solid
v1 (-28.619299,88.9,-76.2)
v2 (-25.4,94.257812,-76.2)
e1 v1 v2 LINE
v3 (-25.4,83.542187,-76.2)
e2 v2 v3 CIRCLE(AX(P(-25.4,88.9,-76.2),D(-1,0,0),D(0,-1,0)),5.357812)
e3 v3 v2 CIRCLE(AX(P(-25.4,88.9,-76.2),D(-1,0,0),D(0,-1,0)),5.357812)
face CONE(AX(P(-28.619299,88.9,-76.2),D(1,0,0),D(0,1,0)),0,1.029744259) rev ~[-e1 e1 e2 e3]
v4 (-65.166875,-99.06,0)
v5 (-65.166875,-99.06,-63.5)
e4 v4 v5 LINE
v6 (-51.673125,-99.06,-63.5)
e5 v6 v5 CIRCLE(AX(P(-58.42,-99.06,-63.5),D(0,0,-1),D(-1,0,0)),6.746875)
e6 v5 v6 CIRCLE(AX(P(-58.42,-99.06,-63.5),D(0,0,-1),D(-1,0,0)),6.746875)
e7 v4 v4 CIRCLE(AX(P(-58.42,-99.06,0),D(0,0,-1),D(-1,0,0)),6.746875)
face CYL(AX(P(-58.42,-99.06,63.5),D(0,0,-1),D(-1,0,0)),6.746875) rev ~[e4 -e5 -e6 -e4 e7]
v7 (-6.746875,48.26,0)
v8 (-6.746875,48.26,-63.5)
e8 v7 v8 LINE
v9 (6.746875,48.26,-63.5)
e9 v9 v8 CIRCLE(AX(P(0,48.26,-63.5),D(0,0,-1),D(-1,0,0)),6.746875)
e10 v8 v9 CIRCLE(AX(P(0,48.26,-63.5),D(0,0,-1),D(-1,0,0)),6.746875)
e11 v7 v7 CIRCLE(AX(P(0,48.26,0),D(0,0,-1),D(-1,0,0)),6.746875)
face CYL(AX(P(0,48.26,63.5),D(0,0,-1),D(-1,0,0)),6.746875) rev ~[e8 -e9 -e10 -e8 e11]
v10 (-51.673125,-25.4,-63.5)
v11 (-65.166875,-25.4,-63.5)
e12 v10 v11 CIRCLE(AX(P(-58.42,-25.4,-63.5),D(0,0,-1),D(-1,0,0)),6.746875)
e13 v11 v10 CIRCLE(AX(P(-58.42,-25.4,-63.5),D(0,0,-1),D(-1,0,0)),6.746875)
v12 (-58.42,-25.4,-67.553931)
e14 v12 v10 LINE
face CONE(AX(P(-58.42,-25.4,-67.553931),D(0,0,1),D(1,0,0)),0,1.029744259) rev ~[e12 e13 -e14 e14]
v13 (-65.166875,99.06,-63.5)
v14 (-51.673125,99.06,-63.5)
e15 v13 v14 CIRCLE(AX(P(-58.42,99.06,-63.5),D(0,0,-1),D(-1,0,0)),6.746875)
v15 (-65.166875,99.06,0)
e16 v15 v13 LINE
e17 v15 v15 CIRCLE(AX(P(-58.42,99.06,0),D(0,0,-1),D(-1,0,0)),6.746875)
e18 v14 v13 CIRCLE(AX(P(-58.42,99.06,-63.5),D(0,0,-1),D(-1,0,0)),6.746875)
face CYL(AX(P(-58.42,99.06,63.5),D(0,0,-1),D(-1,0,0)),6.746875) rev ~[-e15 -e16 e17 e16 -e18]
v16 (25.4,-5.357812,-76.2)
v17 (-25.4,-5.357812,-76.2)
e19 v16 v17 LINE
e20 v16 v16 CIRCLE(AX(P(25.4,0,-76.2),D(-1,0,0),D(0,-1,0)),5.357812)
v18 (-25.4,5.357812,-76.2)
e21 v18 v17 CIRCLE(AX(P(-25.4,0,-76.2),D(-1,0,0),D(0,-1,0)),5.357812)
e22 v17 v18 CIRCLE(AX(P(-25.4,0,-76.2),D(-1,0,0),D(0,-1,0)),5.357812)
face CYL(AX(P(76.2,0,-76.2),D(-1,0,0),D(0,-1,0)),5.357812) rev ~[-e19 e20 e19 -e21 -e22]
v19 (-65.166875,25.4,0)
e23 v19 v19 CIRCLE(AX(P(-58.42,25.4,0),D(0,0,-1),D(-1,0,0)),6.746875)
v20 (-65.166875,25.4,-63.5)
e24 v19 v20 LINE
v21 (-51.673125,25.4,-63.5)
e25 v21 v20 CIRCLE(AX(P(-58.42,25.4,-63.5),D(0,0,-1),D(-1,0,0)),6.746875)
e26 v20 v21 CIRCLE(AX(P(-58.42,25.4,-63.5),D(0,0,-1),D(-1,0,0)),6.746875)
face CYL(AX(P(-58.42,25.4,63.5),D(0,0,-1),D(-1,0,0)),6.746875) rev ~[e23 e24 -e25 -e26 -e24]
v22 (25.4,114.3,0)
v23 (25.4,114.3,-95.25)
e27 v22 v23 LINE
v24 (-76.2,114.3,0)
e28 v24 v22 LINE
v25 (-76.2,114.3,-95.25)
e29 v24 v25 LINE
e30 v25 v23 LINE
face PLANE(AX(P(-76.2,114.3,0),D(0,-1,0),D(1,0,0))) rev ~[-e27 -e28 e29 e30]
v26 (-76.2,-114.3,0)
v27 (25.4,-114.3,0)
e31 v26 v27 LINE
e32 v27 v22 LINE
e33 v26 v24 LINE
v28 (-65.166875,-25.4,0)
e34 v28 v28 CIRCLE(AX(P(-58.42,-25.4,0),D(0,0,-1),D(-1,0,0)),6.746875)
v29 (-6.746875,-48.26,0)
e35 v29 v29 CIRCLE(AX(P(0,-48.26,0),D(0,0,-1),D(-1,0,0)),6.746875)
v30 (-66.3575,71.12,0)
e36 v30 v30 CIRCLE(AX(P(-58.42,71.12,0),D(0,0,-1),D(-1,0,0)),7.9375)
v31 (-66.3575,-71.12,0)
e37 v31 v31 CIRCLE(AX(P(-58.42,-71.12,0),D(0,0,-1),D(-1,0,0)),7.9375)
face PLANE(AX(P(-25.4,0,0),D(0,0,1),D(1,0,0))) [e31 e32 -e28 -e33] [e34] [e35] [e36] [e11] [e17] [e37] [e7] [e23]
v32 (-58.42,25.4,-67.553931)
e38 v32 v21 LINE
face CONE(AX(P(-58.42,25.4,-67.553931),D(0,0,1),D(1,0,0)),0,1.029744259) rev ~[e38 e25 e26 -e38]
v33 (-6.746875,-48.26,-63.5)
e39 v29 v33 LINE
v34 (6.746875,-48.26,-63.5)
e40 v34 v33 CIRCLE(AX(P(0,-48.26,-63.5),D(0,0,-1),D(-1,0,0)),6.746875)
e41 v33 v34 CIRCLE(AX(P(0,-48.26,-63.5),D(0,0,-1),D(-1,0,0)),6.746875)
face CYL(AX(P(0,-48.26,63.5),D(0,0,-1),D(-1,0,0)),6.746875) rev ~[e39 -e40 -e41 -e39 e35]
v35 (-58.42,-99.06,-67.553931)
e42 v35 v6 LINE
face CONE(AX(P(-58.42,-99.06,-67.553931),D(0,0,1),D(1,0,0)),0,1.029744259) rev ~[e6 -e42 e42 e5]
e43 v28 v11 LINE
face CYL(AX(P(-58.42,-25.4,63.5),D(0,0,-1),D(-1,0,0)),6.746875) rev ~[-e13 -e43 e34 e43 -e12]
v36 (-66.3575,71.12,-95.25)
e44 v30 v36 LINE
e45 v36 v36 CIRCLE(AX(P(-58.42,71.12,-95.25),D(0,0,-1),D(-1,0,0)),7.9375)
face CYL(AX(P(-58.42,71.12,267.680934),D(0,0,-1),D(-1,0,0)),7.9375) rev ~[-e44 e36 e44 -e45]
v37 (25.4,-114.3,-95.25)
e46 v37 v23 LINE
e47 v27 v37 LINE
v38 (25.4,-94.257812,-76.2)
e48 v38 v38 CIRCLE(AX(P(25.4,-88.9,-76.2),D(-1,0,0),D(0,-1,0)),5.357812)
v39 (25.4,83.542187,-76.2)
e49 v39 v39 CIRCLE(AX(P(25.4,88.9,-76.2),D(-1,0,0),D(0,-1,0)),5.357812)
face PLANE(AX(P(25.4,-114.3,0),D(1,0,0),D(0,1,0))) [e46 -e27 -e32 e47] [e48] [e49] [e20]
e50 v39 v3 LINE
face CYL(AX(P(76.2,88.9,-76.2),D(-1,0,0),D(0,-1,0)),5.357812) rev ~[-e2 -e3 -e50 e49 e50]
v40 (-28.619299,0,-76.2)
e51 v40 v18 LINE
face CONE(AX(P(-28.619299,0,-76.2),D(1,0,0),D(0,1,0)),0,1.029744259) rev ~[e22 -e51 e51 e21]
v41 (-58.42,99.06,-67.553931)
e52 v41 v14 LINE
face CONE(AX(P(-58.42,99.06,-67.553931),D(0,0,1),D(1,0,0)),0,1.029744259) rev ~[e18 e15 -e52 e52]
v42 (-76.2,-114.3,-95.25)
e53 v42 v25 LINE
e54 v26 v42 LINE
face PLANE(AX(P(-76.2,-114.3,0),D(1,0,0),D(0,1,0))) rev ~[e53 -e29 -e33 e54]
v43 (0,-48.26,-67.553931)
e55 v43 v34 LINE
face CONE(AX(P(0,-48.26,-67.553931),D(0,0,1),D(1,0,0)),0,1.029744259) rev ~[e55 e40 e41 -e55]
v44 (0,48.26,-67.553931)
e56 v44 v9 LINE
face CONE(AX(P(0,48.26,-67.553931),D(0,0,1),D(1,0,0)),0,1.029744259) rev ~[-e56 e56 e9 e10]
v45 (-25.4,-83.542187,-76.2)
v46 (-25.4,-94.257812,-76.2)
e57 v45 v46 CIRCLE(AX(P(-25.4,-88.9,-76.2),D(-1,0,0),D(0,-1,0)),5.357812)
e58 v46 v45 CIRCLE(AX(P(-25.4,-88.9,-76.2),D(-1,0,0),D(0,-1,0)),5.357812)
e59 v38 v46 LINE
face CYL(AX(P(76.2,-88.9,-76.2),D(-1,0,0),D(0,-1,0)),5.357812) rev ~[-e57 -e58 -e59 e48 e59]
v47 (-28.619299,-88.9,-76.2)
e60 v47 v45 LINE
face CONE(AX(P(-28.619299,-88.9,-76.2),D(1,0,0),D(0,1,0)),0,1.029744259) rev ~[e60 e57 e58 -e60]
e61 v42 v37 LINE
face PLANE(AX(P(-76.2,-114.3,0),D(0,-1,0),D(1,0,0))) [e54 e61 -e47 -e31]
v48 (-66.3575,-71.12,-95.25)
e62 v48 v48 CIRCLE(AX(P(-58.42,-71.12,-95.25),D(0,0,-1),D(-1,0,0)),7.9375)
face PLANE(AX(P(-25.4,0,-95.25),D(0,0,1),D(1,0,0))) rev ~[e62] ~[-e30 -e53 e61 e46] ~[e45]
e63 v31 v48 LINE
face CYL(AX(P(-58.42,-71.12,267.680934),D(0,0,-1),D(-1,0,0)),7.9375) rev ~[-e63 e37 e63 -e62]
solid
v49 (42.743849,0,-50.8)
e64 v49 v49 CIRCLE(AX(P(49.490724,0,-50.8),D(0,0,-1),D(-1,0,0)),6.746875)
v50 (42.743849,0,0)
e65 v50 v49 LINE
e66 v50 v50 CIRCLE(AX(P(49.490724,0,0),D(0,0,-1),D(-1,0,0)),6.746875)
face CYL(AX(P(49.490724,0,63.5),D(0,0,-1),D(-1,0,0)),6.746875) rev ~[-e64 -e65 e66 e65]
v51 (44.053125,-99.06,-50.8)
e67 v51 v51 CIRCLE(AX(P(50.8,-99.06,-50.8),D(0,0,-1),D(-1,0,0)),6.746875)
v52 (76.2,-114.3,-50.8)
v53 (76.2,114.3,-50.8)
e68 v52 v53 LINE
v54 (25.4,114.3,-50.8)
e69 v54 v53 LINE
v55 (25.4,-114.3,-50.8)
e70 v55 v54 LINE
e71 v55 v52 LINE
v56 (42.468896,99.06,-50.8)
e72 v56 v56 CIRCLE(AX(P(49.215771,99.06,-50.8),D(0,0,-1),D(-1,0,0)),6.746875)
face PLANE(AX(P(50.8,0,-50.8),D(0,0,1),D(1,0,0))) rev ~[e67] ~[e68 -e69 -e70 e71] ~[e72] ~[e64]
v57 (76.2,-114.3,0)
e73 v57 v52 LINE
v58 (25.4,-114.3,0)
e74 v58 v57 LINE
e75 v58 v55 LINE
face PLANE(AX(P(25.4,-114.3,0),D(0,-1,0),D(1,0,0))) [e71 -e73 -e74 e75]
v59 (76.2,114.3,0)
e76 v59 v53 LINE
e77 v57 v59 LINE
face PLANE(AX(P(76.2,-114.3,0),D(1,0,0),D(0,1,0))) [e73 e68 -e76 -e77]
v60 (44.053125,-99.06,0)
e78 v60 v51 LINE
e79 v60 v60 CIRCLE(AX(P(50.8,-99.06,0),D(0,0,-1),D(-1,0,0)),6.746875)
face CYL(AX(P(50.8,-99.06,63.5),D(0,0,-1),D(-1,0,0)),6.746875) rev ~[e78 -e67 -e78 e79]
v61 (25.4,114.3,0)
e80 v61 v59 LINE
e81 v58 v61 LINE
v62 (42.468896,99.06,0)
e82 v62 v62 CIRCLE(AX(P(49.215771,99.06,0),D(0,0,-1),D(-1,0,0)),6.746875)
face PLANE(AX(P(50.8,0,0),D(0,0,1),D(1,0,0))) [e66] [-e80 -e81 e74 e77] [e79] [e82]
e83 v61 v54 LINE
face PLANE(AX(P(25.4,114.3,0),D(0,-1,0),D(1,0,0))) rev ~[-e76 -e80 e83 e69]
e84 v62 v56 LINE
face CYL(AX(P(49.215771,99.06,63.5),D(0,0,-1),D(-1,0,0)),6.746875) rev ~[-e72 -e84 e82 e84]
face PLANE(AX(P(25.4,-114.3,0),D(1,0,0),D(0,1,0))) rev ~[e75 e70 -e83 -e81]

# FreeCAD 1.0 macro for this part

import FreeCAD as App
import Part
import Sketcher

V = App.Vector
Q = App.Units.Quantity


def add_polygon(sketch, points):
    """Adds a closed chain of lines whose ends are joined by coincident constraints."""
    first, n = sketch.GeometryCount, len(points)
    for a, b in zip(points, points[1:] + points[:1]):
        sketch.addGeometry(Part.LineSegment(App.Vector(*a, 0), App.Vector(*b, 0)), False)
    for i in range(n):
        sketch.addConstraint(Sketcher.Constraint("Coincident", first + i, 2, first + (i + 1) % n, 1))

doc = App.newDocument("Part")
body = doc.addObject("PartDesign::Body", "Body")

sketch1 = body.newObject("Sketcher::SketchObject", "Sketch")
sketch1.AttachmentSupport = (doc.getObject("XY_Plane"), [""])
sketch1.MapMode = "FlatFace"
add_polygon(sketch1, [(-76, 114), (-76, -114), (25, -114), (25, 114)])
sketch1.addConstraint([
    Sketcher.Constraint("Vertical", 0),
    Sketcher.Constraint("Horizontal", 1),
    Sketcher.Constraint("Vertical", 2),
    Sketcher.Constraint("Horizontal", 3),
    Sketcher.Constraint("DistanceX", 1, 1, 1, 2, Q("4 in")),
    Sketcher.Constraint("DistanceY", 0, 2, 0, 1, Q("9 in")),
    Sketcher.Constraint("DistanceX", 0, 2, -1, 1, Q("3 in")),
    Sketcher.Constraint("DistanceY", 0, 2, -1, 1, Q("4.5 in")),
])
pad1 = body.newObject("PartDesign::Pad", "Pad")
pad1.Profile = sketch1
pad1.Length = Q("3.75 in")
pad1.Reversed = True

sketch2 = body.newObject("Sketcher::SketchObject", "Sketch001")
sketch2.AttachmentSupport = (doc.getObject("XY_Plane"), [""])
sketch2.MapMode = "FlatFace"
sketch2.addGeometry([
    Part.Circle(V(-58, 99, 0), V(0, 0, 1), 7),
    Part.Circle(V(-58, 25, 0), V(0, 0, 1), 7),
    Part.Circle(V(-58, -25, 0), V(0, 0, 1), 7),
    Part.Circle(V(-58, -99, 0), V(0, 0, 1), 7),
    Part.Circle(V(51, -99, 0), V(0, 0, 1), 7),
    Part.Circle(V(49, 0, 0), V(0, 0, 1), 7),
    Part.Circle(V(49, 99, 0), V(0, 0, 1), 7),
    Part.Circle(V(0, 48, 0), V(0, 0, 1), 7),
    Part.Circle(V(0, -48, 0), V(0, 0, 1), 7),
], False)
sketch2.addConstraint([
    Sketcher.Constraint("Equal", 0, 1),
    Sketcher.Constraint("Equal", 1, 2),
    Sketcher.Constraint("Equal", 2, 3),
    Sketcher.Constraint("Equal", 3, 4),
    Sketcher.Constraint("Equal", 4, 5),
    Sketcher.Constraint("Equal", 5, 6),
    Sketcher.Constraint("Equal", 6, 7),
    Sketcher.Constraint("Equal", 7, 8),
    Sketcher.Constraint("Symmetric", 7, 3, 8, 3, -1, 1),
    Sketcher.Constraint("Symmetric", 1, 3, 2, 3, -1),
    Sketcher.Constraint("Symmetric", 0, 3, 3, 3, -1),
    Sketcher.Constraint("PointOnObject", 5, 3, -1),
    Sketcher.Constraint("PointOnObject", 7, 3, -2),
    Sketcher.Constraint("Horizontal", 3, 3, 4, 3),
    Sketcher.Constraint("Horizontal", 0, 3, 6, 3),
    Sketcher.Constraint("Vertical", 0, 3, 1, 3),
    Sketcher.Constraint("Diameter", 0, Q("0.53125 in")),
    Sketcher.Constraint("DistanceY", -1, 1, 1, 3, Q("1 in")),
    Sketcher.Constraint("DistanceX", -1, 1, 4, 3, Q("2 in")),
    Sketcher.Constraint("DistanceY", 7, 3, 6, 3, Q("2 in")),
    Sketcher.Constraint("DistanceX", 0, 3, -1, 1, Q("2.3 in")),
    Sketcher.Constraint("DistanceY", -1, 1, 0, 3, Q("3.9 in")),
    Sketcher.Constraint("DistanceX", -1, 1, 6, 3, Q("49.215771 mm")),
    Sketcher.Constraint("DistanceX", -1, 1, 5, 3, Q("49.490724 mm")),
])
doc.recompute()
hole = body.newObject("PartDesign::Hole", "Hole")
hole.Profile = sketch2
hole.ThreadType = "None"
hole.Diameter = Q("0.53125 in")
hole.DepthType = "Dimension"
hole.Depth = Q("2.5 in")
hole.DrillPoint = "Angled"
hole.DrillPointAngle = 118

sketch3 = body.newObject("Sketcher::SketchObject", "Sketch002")
sketch3.AttachmentSupport = (doc.getObject("XY_Plane"), [""])
sketch3.MapMode = "FlatFace"
sketch3.addGeometry([
    Part.Circle(V(-58, 71, 0), V(0, 0, 1), 8),
    Part.Circle(V(-58, -71, 0), V(0, 0, 1), 8),
], False)
sketch3.addConstraint([
    Sketcher.Constraint("Equal", 0, 1),
    Sketcher.Constraint("Symmetric", 0, 3, 1, 3, -1),
    Sketcher.Constraint("Diameter", 0, Q("0.625 in")),
    Sketcher.Constraint("DistanceX", 0, 3, -1, 1, Q("2.3 in")),
    Sketcher.Constraint("DistanceY", -1, 1, 0, 3, Q("2.8 in")),
])
doc.recompute()
hole2 = body.newObject("PartDesign::Hole", "Hole001")
hole2.Profile = sketch3
hole2.ThreadType = "None"
hole2.Diameter = Q("0.625 in")
hole2.DepthType = "ThroughAll"

sketch4 = body.newObject("Sketcher::SketchObject", "Sketch003")
sketch4.AttachmentSupport = (doc.getObject("YZ_Plane"), [""])
sketch4.MapMode = "FlatFace"
sketch4.AttachmentOffset = App.Placement(V(0, 0, 1 * 25.4), App.Rotation())
sketch4.addGeometry([
    Part.Circle(V(-89, -76, 0), V(0, 0, 1), 5),
    Part.Circle(V(0, -76, 0), V(0, 0, 1), 5),
    Part.Circle(V(89, -76, 0), V(0, 0, 1), 5),
], False)
sketch4.addConstraint([
    Sketcher.Constraint("Equal", 0, 1),
    Sketcher.Constraint("Equal", 1, 2),
    Sketcher.Constraint("Symmetric", 0, 3, 2, 3, -2),
    Sketcher.Constraint("PointOnObject", 1, 3, -2),
    Sketcher.Constraint("Horizontal", 0, 3, 1, 3),
    Sketcher.Constraint("Diameter", 0, Q("0.421875 in")),
    Sketcher.Constraint("DistanceY", 0, 3, -1, 1, Q("3 in")),
    Sketcher.Constraint("DistanceX", 0, 3, 2, 3, Q("7 in")),
])
doc.recompute()
hole3 = body.newObject("PartDesign::Hole", "Hole002")
hole3.Profile = sketch4
hole3.ThreadType = "None"
hole3.Diameter = Q("0.421875 in")
hole3.DepthType = "Dimension"
hole3.Depth = Q("2 in")
hole3.DrillPoint = "Angled"
hole3.DrillPointAngle = 118
body2 = doc.addObject("PartDesign::Body", "Body001")

sketch5 = body2.newObject("Sketcher::SketchObject", "Sketch004")
sketch5.AttachmentSupport = (doc.getObject("XY_Plane001"), [""])
sketch5.MapMode = "FlatFace"
add_polygon(sketch5, [(25, 114), (25, -114), (76, -114), (76, 114)])
sketch5.addConstraint([
    Sketcher.Constraint("Vertical", 0),
    Sketcher.Constraint("Horizontal", 1),
    Sketcher.Constraint("Vertical", 2),
    Sketcher.Constraint("Horizontal", 3),
    Sketcher.Constraint("DistanceX", 1, 1, 1, 2, Q("2 in")),
    Sketcher.Constraint("DistanceY", 0, 2, 0, 1, Q("9 in")),
    Sketcher.Constraint("DistanceX", -1, 1, 0, 2, Q("1 in")),
    Sketcher.Constraint("DistanceY", 0, 2, -1, 1, Q("4.5 in")),
])
pad2 = body2.newObject("PartDesign::Pad", "Pad001")
pad2.Profile = sketch5
pad2.Length = Q("2 in")
pad2.Reversed = True

sketch6 = body2.newObject("Sketcher::SketchObject", "Sketch005")
sketch6.AttachmentSupport = (doc.getObject("XY_Plane001"), [""])
sketch6.MapMode = "FlatFace"
sketch6.addGeometry([
    Part.Circle(V(49, 99, 0), V(0, 0, 1), 7),
    Part.Circle(V(49, 0, 0), V(0, 0, 1), 7),
    Part.Circle(V(51, -99, 0), V(0, 0, 1), 7),
], False)
sketch6.addConstraint([
    Sketcher.Constraint("Equal", 0, 1),
    Sketcher.Constraint("Equal", 1, 2),
    Sketcher.Constraint("PointOnObject", 1, 3, -1),
    Sketcher.Constraint("Diameter", 0, Q("0.53125 in")),
    Sketcher.Constraint("DistanceX", -1, 1, 2, 3, Q("2 in")),
    Sketcher.Constraint("DistanceY", -1, 1, 0, 3, Q("3.9 in")),
    Sketcher.Constraint("DistanceY", 2, 3, -1, 1, Q("3.9 in")),
    Sketcher.Constraint("DistanceX", -1, 1, 0, 3, Q("49.215771 mm")),
    Sketcher.Constraint("DistanceX", -1, 1, 1, 3, Q("49.490724 mm")),
])
doc.recompute()
hole4 = body2.newObject("PartDesign::Hole", "Hole003")
hole4.Profile = sketch6
hole4.ThreadType = "None"
hole4.Diameter = Q("0.53125 in")
hole4.DepthType = "Dimension"
hole4.Depth = Q("2.5 in")
hole4.DrillPoint = "Angled"
hole4.DrillPointAngle = 118

doc.recompute()
